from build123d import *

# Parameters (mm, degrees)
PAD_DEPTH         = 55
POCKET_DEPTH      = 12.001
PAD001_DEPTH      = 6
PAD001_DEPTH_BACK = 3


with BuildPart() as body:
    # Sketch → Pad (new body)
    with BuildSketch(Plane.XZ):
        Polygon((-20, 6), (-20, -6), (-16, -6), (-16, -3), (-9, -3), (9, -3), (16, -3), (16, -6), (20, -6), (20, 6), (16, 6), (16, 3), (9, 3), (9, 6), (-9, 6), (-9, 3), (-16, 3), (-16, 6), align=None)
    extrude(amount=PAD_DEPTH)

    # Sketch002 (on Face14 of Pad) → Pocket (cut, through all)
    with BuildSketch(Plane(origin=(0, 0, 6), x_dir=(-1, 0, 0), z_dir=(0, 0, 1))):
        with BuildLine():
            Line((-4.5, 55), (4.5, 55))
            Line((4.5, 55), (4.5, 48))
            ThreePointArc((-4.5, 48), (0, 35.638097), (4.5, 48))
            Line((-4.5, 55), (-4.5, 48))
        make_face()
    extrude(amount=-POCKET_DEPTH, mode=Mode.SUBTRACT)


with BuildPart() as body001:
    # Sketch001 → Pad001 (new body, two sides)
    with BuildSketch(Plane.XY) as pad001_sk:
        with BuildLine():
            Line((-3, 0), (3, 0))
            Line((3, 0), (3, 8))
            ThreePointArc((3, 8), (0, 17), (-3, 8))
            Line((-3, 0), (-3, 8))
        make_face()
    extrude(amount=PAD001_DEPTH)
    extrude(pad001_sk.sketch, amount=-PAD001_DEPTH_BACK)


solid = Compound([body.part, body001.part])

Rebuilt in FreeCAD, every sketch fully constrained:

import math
import FreeCAD as App
import Part
import Sketcher
Q = App.Units.Quantity


def add_polygon(sketch, points):
    """Adds a closed chain of lines whose ends are joined by coincident constraints."""
    first, n = sketch.GeometryCount, len(points)
    for a, b in zip(points, points[1:] + points[:1]):
        sketch.addGeometry(Part.LineSegment(App.Vector(*a, 0), App.Vector(*b, 0)), False)
    for i in range(n):
        sketch.addConstraint(Sketcher.Constraint("Coincident", first + i, 2, first + (i + 1) % n, 1))

doc = App.newDocument("Part")
params = doc.addObject("Spreadsheet::Sheet", "Params")
for row, (alias, value) in enumerate([
    ("sketch1_width", "4 mm"),
    ("sketch1_width2", "32 mm"),
    ("sketch1_width3", "7 mm"),
    ("sketch1_height", "12 mm"),
    ("sketch1_height2", "3 mm"),
    ("pad1_length", "55 mm"),
    ("sketch2_radius", "7 mm"),
    ("sketch2_width", "9 mm"),
    ("sketch2_height", "7 mm"),
    ("sketch3_radius", "5 mm"),
    ("sketch3_width", "6 mm"),
    ("sketch3_height", "8 mm"),
    ("pad2_length", "6 mm"),
    ("pad2_length2", "3 mm"),
], start=1):
    params.set(f"A{row}", alias)
    params.set(f"B{row}", "=" + value)
    params.setAlias(f"B{row}", alias)

body = doc.addObject("PartDesign::Body", "Body")

# Sketch on XZ plane
sketch1 = body.newObject("Sketcher::SketchObject", "Sketch")
sketch1.AttachmentSupport = (doc.getObject("XZ_Plane"), [""])
sketch1.MapMode = "FlatFace"
add_polygon(sketch1, [(-20, 6), (-20, -6), (-16, -6), (-16, -3), (16, -3), (16, -6), (20, -6), (20, 6), (16, 6), (16, 3), (9, 3), (9, 6), (-9, 6), (-9, 3), (-16, 3), (-16, 6)])  # lines 0-15
sketch1.addConstraint([
    Sketcher.Constraint("Vertical", 0),
    Sketcher.Constraint("Horizontal", 1),
    Sketcher.Constraint("Vertical", 2),
    Sketcher.Constraint("Horizontal", 3),
    Sketcher.Constraint("Vertical", 4),
    Sketcher.Constraint("Horizontal", 5),
    Sketcher.Constraint("Vertical", 6),
    Sketcher.Constraint("Horizontal", 7),
    Sketcher.Constraint("Vertical", 8),
    Sketcher.Constraint("Horizontal", 9),
    Sketcher.Constraint("Vertical", 10),
    Sketcher.Constraint("Horizontal", 11),
    Sketcher.Constraint("Vertical", 12),
    Sketcher.Constraint("Horizontal", 13),
    Sketcher.Constraint("Vertical", 14),
    Sketcher.Constraint("Horizontal", 15),
    Sketcher.Constraint("Symmetric", 0, 2, 6, 2, -1, 1),
    Sketcher.Constraint("Symmetric", 2, 2, 8, 2, -1, 1),
    Sketcher.Constraint("Symmetric", 3, 2, 13, 2, -1, 1),
    Sketcher.Constraint("Symmetric", 1, 2, 4, 2, -2),
    Sketcher.Constraint("Horizontal", 7, 2, 10, 2),
    Sketcher.Constraint("Horizontal", 11, 2, 14, 2),
    Sketcher.Constraint("Equal", 9, 13),
    Sketcher.Constraint("DistanceX", 1, 1, 1, 2, Q("4 mm")),
    Sketcher.Constraint("DistanceX", 3, 1, 3, 2, Q("32 mm")),
    Sketcher.Constraint("DistanceX", 9, 2, 9, 1, Q("7 mm")),
    Sketcher.Constraint("DistanceY", 0, 2, 0, 1, Q("12 mm")),
    Sketcher.Constraint("DistanceY", 2, 1, 2, 2, Q("3 mm")),
])
sketch1.setExpression("Constraints[39]", "Params.sketch1_width")
sketch1.setExpression("Constraints[40]", "Params.sketch1_width2")
sketch1.setExpression("Constraints[41]", "Params.sketch1_width3")
sketch1.setExpression("Constraints[42]", "Params.sketch1_height")
sketch1.setExpression("Constraints[43]", "Params.sketch1_height2")
pad1 = body.newObject("PartDesign::Pad", "Pad")
pad1.Profile = sketch1
pad1.setExpression("Length", "Params.pad1_length")

# Sketch on XY plane
sketch2 = body.newObject("Sketcher::SketchObject", "Sketch001")
sketch2.AttachmentSupport = (doc.getObject("XY_Plane"), [""])
sketch2.MapMode = "FlatFace"
sketch2.AttachmentOffset = App.Placement(App.Vector(0, 0, 6), App.Rotation())
sketch2.addGeometry([
    Part.LineSegment(App.Vector(-4.5, -55, 0), App.Vector(4.5, -55, 0)),
    Part.LineSegment(App.Vector(4.5, -55, 0), App.Vector(4.5, -48, 0)),
    Part.ArcOfCircle(Part.Circle(App.Vector(0, -42.638097, 0), App.Vector(0, 0, 1), 7), math.radians(-49.9948), math.radians(229.9948)),
    Part.LineSegment(App.Vector(-4.5, -48, 0), App.Vector(-4.5, -55, 0)),
], False)
sketch2.addConstraint([
    Sketcher.Constraint("Coincident", 0, 2, 1, 1),
    Sketcher.Constraint("Coincident", 1, 2, 2, 1),
    Sketcher.Constraint("Coincident", 2, 2, 3, 1),
    Sketcher.Constraint("Coincident", 3, 2, 0, 1),
    Sketcher.Constraint("Horizontal", 0),
    Sketcher.Constraint("Vertical", 1),
    Sketcher.Constraint("Vertical", 3),
    Sketcher.Constraint("Symmetric", 1, 2, 2, 2, -2),
    Sketcher.Constraint("Radius", 2, Q("7 mm")),
    Sketcher.Constraint("DistanceX", 0, 1, 0, 2, Q("9 mm")),
    Sketcher.Constraint("DistanceY", 1, 1, 1, 2, Q("7 mm")),
    Sketcher.Constraint("DistanceY", 0, 2, -1, 1, Q("55 mm")),
])
sketch2.setExpression("Constraints[8]", "Params.sketch2_radius")
sketch2.setExpression("Constraints[9]", "Params.sketch2_width")
sketch2.setExpression("Constraints[10]", "Params.sketch2_height")
pocket1 = body.newObject("PartDesign::Pocket", "Pocket")
pocket1.Profile = sketch2
pocket1.Type = "ThroughAll"
body2 = doc.addObject("PartDesign::Body", "Body001")

# Sketch on XY plane
sketch3 = body2.newObject("Sketcher::SketchObject", "Sketch002")
sketch3.AttachmentSupport = (doc.getObject("XY_Plane001"), [""])
sketch3.MapMode = "FlatFace"
sketch3.addGeometry([
    Part.LineSegment(App.Vector(-3, 0, 0), App.Vector(3, 0, 0)),
    Part.LineSegment(App.Vector(3, 0, 0), App.Vector(3, 8, 0)),
    Part.ArcOfCircle(Part.Circle(App.Vector(0, 12, 0), App.Vector(0, 0, 1), 5), math.radians(-53.130102), math.radians(233.130102)),
    Part.LineSegment(App.Vector(-3, 8, 0), App.Vector(-3, 0, 0)),
], False)
sketch3.addConstraint([
    Sketcher.Constraint("Coincident", 0, 2, 1, 1),
    Sketcher.Constraint("Coincident", 1, 2, 2, 1),
    Sketcher.Constraint("Coincident", 2, 2, 3, 1),
    Sketcher.Constraint("Coincident", 3, 2, 0, 1),
    Sketcher.Constraint("Horizontal", 0),
    Sketcher.Constraint("Vertical", 1),
    Sketcher.Constraint("Vertical", 3),
    Sketcher.Constraint("Symmetric", 0, 2, 3, 2, -1, 1),
    Sketcher.Constraint("PointOnObject", 2, 3, -2),
    Sketcher.Constraint("Radius", 2, Q("5 mm")),
    Sketcher.Constraint("DistanceX", 0, 1, 0, 2, Q("6 mm")),
    Sketcher.Constraint("DistanceY", 1, 1, 1, 2, Q("8 mm")),
])
sketch3.setExpression("Constraints[9]", "Params.sketch3_radius")
sketch3.setExpression("Constraints[10]", "Params.sketch3_width")
sketch3.setExpression("Constraints[11]", "Params.sketch3_height")
pad2 = body2.newObject("PartDesign::Pad", "Pad001")
pad2.Profile = sketch3
pad2.Type = "TwoLengths"
pad2.setExpression("Length", "Params.pad2_length")
pad2.setExpression("Length2", "Params.pad2_length2")

doc.recompute()
